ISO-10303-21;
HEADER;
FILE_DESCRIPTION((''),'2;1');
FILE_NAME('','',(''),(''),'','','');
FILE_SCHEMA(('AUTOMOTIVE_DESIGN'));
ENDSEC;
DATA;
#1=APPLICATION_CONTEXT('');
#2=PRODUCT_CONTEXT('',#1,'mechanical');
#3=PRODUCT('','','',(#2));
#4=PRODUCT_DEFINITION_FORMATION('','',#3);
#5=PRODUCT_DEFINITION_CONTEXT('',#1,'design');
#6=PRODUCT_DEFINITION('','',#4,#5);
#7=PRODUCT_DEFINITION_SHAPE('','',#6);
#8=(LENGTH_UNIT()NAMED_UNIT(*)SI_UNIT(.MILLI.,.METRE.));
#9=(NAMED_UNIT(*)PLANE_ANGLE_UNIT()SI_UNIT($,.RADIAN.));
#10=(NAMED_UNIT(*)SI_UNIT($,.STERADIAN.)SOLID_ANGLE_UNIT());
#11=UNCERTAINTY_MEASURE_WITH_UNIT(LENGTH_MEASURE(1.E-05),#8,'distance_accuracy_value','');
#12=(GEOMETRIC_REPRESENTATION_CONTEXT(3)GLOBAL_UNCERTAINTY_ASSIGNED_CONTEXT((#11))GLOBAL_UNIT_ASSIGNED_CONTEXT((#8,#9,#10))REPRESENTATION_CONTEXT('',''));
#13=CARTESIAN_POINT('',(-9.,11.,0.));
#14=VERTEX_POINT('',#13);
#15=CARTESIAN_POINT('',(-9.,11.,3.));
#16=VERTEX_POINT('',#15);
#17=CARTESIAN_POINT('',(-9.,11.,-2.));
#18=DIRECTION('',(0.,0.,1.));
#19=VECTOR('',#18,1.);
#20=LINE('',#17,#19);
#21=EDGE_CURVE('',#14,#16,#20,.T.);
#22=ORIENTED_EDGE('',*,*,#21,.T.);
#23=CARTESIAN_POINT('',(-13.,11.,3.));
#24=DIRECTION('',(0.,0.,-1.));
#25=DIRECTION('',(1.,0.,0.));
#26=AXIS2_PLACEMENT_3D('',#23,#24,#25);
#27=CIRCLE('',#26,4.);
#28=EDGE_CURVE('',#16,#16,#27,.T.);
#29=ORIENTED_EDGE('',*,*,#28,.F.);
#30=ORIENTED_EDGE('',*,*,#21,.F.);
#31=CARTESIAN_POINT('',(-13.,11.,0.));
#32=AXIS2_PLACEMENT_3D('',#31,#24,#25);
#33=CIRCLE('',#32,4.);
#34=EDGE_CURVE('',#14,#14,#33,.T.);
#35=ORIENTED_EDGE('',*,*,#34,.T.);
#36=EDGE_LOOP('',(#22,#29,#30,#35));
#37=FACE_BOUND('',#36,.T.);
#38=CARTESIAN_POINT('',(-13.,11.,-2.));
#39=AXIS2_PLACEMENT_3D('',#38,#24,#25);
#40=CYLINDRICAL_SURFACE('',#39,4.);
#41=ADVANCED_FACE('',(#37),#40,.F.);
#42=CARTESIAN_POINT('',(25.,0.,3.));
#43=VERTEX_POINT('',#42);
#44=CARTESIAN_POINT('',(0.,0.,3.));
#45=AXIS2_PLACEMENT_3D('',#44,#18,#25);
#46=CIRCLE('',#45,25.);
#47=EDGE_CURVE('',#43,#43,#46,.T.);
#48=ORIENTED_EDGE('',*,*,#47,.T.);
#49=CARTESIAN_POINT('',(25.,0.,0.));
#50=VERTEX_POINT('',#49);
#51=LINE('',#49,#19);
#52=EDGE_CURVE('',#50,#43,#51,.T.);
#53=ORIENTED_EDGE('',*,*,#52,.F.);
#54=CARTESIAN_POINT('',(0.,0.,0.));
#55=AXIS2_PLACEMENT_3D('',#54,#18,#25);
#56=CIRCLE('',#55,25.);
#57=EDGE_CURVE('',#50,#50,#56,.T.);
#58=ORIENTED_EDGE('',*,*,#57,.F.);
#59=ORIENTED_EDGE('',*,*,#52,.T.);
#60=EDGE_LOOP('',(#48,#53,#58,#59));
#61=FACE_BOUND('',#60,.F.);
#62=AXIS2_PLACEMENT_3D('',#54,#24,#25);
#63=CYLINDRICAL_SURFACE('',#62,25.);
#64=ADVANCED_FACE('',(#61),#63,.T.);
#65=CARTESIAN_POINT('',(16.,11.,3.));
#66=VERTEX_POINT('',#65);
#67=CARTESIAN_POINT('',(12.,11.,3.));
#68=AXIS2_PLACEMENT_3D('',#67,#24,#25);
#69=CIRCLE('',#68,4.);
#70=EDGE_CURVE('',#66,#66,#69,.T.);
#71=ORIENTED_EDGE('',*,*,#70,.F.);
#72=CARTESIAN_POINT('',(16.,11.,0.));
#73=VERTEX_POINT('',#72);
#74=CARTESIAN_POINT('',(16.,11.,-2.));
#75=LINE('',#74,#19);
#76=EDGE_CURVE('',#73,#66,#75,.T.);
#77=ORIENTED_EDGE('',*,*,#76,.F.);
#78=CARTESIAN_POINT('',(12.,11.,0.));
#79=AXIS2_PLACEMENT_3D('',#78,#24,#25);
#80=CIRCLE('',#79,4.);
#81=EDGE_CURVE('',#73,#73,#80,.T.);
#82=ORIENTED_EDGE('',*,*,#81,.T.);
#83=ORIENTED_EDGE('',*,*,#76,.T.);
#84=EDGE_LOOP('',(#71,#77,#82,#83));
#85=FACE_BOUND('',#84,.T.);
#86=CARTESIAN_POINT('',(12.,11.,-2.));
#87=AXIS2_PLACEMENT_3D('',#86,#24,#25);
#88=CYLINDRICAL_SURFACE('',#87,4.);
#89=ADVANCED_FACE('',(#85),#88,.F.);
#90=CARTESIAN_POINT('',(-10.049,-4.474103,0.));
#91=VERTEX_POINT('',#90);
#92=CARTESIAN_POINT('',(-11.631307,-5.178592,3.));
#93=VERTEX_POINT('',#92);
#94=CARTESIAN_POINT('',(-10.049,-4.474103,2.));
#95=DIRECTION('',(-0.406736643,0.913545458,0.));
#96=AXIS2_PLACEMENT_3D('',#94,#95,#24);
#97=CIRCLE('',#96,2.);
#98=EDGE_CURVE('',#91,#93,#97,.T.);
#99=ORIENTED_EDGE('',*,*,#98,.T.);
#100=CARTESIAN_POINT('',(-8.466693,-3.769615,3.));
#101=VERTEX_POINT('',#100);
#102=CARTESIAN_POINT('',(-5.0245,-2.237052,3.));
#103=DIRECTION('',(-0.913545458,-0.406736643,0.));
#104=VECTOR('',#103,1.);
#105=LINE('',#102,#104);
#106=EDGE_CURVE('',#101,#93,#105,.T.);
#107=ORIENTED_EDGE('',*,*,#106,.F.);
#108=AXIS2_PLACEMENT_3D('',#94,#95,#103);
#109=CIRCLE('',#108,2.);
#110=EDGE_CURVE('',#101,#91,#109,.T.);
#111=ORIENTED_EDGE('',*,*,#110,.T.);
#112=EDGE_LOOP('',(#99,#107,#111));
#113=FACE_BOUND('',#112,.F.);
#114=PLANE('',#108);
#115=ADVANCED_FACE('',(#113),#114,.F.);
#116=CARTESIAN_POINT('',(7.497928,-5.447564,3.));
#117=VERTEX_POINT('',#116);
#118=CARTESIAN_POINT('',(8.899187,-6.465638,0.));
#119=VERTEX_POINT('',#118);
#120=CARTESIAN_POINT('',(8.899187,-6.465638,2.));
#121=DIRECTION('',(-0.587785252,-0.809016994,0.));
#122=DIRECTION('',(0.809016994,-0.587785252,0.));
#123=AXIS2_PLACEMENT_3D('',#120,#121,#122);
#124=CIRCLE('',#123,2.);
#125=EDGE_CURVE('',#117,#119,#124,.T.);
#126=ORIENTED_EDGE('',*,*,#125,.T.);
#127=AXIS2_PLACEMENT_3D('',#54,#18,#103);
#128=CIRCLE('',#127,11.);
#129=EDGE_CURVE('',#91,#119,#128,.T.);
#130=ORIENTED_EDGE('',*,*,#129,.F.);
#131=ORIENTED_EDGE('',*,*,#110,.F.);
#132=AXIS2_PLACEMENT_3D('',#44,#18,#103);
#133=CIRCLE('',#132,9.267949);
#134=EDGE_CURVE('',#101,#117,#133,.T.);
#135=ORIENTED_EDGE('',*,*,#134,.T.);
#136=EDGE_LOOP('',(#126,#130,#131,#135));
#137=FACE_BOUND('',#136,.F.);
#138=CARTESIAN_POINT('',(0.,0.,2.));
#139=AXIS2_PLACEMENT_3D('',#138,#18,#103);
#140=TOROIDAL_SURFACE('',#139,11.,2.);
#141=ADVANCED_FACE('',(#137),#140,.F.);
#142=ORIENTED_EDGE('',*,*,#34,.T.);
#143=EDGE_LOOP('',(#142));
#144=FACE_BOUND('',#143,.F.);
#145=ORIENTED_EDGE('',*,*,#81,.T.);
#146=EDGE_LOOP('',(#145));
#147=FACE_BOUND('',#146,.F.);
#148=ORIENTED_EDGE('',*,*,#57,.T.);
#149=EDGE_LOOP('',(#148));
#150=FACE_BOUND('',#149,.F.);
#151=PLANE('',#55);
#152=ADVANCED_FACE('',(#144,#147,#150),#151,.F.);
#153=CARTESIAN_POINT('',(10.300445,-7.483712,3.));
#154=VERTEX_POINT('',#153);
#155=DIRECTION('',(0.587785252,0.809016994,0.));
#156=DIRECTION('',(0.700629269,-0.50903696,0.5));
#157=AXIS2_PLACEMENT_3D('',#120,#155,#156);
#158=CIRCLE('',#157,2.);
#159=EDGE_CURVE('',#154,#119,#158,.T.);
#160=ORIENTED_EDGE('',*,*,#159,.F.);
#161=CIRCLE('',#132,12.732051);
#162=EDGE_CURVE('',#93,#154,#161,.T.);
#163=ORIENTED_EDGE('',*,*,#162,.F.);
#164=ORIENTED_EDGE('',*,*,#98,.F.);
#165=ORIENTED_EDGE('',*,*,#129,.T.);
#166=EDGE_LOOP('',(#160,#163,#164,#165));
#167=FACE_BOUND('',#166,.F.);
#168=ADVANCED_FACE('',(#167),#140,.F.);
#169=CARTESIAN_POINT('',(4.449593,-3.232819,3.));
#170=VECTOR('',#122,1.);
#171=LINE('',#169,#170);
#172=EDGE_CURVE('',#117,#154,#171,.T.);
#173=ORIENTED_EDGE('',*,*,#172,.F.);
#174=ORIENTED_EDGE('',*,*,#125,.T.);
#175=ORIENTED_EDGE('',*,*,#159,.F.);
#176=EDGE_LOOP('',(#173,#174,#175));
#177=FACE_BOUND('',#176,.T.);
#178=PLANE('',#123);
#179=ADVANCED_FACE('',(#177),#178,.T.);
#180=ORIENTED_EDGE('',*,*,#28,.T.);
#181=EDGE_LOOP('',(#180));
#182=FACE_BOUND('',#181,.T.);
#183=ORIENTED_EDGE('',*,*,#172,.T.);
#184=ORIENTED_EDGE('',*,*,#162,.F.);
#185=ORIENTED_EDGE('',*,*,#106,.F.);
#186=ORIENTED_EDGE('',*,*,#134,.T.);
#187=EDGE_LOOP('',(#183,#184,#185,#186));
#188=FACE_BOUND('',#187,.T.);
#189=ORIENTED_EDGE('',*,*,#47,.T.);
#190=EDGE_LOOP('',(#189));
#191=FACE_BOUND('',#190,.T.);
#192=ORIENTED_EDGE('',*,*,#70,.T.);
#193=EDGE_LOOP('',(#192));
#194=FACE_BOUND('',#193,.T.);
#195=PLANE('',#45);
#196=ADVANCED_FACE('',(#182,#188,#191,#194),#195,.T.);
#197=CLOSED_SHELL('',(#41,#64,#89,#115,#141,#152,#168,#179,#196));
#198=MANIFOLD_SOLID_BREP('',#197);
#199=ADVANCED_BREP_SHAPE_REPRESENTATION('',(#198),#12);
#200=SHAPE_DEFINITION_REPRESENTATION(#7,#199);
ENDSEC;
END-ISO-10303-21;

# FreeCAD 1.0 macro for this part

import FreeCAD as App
import Part
import Sketcher
Q = App.Units.Quantity

doc = App.newDocument("Part")
params = doc.addObject("Spreadsheet::Sheet", "Params")
for row, (alias, value) in enumerate([
    ("sketch1_diameter", "4 mm"),
    ("revolution_angle", "120 deg"),
    ("sketch2_diameter", "8 mm"),
    ("pad1_length", "10 mm"),
    ("sketch3_diameter", "8 mm"),
    ("pad2_length", "10 mm"),
    ("sketch4_diameter", "50 mm"),
    ("pad3_length", "3 mm"),
], start=1):
    params.set(f"A{row}", alias)
    params.set(f"B{row}", "=" + value)
    params.setAlias(f"B{row}", alias)

body = doc.addObject("PartDesign::Body", "Body")

sketch1 = doc.addObject("Sketcher::SketchObject", "Sketch")
body.addObject(sketch1)
sketch1.AttachmentSupport = (doc.XZ_Plane, [""])
sketch1.MapMode = "FlatFace"
sketch1.addGeometry(Part.Circle(App.Vector(11, 0, 0), App.Vector(0, 0, 1), 2), False)
sketch1.addConstraint(Sketcher.Constraint("PointOnObject", 0, 3, -1))
sketch1.addConstraint(Sketcher.Constraint("Diameter", 0, Q("4 mm")))
sketch1.addConstraint(Sketcher.Constraint("DistanceX", -1, 1, 0, 3, Q("11 mm")))
sketch1.setExpression("Constraints[1]", "Params.sketch1_diameter")
revolution = doc.addObject("PartDesign::Revolution", "Revolution")
body.addObject(revolution)
revolution.Profile = sketch1
revolution.ReferenceAxis = (sketch1, ["V_Axis"])
revolution.setExpression("Angle", "Params.revolution_angle")
body2 = doc.addObject("PartDesign::Body", "Body001")
doc.recompute()

body.Placement = App.Placement(App.Vector(0, 0, 2), App.Rotation(App.Vector(0, 0, 1), 204))
boolean = doc.addObject("PartDesign::Boolean", "Boolean")
body2.addObject(boolean)
boolean.Type = "Fuse"
boolean.addObjects([body])
body3 = doc.addObject("PartDesign::Body", "Body002")

sketch2 = doc.addObject("Sketcher::SketchObject", "Sketch001")
body3.addObject(sketch2)
sketch2.AttachmentSupport = (doc.getObject("XY_Plane002"), [""])
sketch2.MapMode = "FlatFace"
sketch2.AttachmentOffset = App.Placement(App.Vector(0, 0, -2), App.Rotation())
sketch2.addGeometry(Part.Circle(App.Vector(12, 11, 0), App.Vector(0, 0, 1), 4), False)
sketch2.addConstraint(Sketcher.Constraint("Diameter", 0, Q("8 mm")))
sketch2.addConstraint(Sketcher.Constraint("DistanceX", -1, 1, 0, 3, Q("12 mm")))
sketch2.addConstraint(Sketcher.Constraint("DistanceY", -1, 1, 0, 3, Q("11 mm")))
sketch2.setExpression("Constraints[0]", "Params.sketch2_diameter")
pad1 = doc.addObject("PartDesign::Pad", "Pad")
body3.addObject(pad1)
pad1.Profile = sketch2
pad1.setExpression("Length", "Params.pad1_length")
body4 = doc.addObject("PartDesign::Body", "Body003")
body4.AllowCompound = True

sketch3 = doc.addObject("Sketcher::SketchObject", "Sketch002")
body4.addObject(sketch3)
sketch3.AttachmentSupport = (doc.getObject("XY_Plane003"), [""])
sketch3.MapMode = "FlatFace"
sketch3.AttachmentOffset = App.Placement(App.Vector(0, 0, -2), App.Rotation())
sketch3.addGeometry(Part.Circle(App.Vector(-13, 11, 0), App.Vector(0, 0, 1), 4), False)
sketch3.addConstraint(Sketcher.Constraint("Diameter", 0, Q("8 mm")))
sketch3.addConstraint(Sketcher.Constraint("DistanceX", 0, 3, -1, 1, Q("13 mm")))
sketch3.addConstraint(Sketcher.Constraint("DistanceY", -1, 1, 0, 3, Q("11 mm")))
sketch3.setExpression("Constraints[0]", "Params.sketch3_diameter")
pad2 = doc.addObject("PartDesign::Pad", "Pad001")
body4.addObject(pad2)
pad2.Profile = sketch3
pad2.setExpression("Length", "Params.pad2_length")
doc.recompute()

boolean2 = doc.addObject("PartDesign::Boolean", "Boolean001")
body4.addObject(boolean2)
boolean2.Type = "Fuse"
boolean2.addObjects([body3])
body5 = doc.addObject("PartDesign::Body", "Body004")

sketch4 = doc.addObject("Sketcher::SketchObject", "Sketch003")
body5.addObject(sketch4)
sketch4.AttachmentSupport = (doc.getObject("XY_Plane004"), [""])
sketch4.MapMode = "FlatFace"
sketch4.addGeometry(Part.Circle(App.Vector(0, 0, 0), App.Vector(0, 0, 1), 25), False)
sketch4.addConstraint(Sketcher.Constraint("Coincident", 0, 3, -1, 1))
sketch4.addConstraint(Sketcher.Constraint("Diameter", 0, Q("50 mm")))
sketch4.setExpression("Constraints[1]", "Params.sketch4_diameter")
pad3 = doc.addObject("PartDesign::Pad", "Pad002")
body5.addObject(pad3)
pad3.Profile = sketch4
pad3.setExpression("Length", "Params.pad3_length")
doc.recompute()

boolean3 = doc.addObject("PartDesign::Boolean", "Boolean002")
body5.addObject(boolean3)
boolean3.Type = "Cut"
boolean3.addObjects([body4])
doc.recompute()

boolean4 = doc.addObject("PartDesign::Boolean", "Boolean003")
body5.addObject(boolean4)
boolean4.Type = "Cut"
boolean4.addObjects([body2])

doc.recompute()
